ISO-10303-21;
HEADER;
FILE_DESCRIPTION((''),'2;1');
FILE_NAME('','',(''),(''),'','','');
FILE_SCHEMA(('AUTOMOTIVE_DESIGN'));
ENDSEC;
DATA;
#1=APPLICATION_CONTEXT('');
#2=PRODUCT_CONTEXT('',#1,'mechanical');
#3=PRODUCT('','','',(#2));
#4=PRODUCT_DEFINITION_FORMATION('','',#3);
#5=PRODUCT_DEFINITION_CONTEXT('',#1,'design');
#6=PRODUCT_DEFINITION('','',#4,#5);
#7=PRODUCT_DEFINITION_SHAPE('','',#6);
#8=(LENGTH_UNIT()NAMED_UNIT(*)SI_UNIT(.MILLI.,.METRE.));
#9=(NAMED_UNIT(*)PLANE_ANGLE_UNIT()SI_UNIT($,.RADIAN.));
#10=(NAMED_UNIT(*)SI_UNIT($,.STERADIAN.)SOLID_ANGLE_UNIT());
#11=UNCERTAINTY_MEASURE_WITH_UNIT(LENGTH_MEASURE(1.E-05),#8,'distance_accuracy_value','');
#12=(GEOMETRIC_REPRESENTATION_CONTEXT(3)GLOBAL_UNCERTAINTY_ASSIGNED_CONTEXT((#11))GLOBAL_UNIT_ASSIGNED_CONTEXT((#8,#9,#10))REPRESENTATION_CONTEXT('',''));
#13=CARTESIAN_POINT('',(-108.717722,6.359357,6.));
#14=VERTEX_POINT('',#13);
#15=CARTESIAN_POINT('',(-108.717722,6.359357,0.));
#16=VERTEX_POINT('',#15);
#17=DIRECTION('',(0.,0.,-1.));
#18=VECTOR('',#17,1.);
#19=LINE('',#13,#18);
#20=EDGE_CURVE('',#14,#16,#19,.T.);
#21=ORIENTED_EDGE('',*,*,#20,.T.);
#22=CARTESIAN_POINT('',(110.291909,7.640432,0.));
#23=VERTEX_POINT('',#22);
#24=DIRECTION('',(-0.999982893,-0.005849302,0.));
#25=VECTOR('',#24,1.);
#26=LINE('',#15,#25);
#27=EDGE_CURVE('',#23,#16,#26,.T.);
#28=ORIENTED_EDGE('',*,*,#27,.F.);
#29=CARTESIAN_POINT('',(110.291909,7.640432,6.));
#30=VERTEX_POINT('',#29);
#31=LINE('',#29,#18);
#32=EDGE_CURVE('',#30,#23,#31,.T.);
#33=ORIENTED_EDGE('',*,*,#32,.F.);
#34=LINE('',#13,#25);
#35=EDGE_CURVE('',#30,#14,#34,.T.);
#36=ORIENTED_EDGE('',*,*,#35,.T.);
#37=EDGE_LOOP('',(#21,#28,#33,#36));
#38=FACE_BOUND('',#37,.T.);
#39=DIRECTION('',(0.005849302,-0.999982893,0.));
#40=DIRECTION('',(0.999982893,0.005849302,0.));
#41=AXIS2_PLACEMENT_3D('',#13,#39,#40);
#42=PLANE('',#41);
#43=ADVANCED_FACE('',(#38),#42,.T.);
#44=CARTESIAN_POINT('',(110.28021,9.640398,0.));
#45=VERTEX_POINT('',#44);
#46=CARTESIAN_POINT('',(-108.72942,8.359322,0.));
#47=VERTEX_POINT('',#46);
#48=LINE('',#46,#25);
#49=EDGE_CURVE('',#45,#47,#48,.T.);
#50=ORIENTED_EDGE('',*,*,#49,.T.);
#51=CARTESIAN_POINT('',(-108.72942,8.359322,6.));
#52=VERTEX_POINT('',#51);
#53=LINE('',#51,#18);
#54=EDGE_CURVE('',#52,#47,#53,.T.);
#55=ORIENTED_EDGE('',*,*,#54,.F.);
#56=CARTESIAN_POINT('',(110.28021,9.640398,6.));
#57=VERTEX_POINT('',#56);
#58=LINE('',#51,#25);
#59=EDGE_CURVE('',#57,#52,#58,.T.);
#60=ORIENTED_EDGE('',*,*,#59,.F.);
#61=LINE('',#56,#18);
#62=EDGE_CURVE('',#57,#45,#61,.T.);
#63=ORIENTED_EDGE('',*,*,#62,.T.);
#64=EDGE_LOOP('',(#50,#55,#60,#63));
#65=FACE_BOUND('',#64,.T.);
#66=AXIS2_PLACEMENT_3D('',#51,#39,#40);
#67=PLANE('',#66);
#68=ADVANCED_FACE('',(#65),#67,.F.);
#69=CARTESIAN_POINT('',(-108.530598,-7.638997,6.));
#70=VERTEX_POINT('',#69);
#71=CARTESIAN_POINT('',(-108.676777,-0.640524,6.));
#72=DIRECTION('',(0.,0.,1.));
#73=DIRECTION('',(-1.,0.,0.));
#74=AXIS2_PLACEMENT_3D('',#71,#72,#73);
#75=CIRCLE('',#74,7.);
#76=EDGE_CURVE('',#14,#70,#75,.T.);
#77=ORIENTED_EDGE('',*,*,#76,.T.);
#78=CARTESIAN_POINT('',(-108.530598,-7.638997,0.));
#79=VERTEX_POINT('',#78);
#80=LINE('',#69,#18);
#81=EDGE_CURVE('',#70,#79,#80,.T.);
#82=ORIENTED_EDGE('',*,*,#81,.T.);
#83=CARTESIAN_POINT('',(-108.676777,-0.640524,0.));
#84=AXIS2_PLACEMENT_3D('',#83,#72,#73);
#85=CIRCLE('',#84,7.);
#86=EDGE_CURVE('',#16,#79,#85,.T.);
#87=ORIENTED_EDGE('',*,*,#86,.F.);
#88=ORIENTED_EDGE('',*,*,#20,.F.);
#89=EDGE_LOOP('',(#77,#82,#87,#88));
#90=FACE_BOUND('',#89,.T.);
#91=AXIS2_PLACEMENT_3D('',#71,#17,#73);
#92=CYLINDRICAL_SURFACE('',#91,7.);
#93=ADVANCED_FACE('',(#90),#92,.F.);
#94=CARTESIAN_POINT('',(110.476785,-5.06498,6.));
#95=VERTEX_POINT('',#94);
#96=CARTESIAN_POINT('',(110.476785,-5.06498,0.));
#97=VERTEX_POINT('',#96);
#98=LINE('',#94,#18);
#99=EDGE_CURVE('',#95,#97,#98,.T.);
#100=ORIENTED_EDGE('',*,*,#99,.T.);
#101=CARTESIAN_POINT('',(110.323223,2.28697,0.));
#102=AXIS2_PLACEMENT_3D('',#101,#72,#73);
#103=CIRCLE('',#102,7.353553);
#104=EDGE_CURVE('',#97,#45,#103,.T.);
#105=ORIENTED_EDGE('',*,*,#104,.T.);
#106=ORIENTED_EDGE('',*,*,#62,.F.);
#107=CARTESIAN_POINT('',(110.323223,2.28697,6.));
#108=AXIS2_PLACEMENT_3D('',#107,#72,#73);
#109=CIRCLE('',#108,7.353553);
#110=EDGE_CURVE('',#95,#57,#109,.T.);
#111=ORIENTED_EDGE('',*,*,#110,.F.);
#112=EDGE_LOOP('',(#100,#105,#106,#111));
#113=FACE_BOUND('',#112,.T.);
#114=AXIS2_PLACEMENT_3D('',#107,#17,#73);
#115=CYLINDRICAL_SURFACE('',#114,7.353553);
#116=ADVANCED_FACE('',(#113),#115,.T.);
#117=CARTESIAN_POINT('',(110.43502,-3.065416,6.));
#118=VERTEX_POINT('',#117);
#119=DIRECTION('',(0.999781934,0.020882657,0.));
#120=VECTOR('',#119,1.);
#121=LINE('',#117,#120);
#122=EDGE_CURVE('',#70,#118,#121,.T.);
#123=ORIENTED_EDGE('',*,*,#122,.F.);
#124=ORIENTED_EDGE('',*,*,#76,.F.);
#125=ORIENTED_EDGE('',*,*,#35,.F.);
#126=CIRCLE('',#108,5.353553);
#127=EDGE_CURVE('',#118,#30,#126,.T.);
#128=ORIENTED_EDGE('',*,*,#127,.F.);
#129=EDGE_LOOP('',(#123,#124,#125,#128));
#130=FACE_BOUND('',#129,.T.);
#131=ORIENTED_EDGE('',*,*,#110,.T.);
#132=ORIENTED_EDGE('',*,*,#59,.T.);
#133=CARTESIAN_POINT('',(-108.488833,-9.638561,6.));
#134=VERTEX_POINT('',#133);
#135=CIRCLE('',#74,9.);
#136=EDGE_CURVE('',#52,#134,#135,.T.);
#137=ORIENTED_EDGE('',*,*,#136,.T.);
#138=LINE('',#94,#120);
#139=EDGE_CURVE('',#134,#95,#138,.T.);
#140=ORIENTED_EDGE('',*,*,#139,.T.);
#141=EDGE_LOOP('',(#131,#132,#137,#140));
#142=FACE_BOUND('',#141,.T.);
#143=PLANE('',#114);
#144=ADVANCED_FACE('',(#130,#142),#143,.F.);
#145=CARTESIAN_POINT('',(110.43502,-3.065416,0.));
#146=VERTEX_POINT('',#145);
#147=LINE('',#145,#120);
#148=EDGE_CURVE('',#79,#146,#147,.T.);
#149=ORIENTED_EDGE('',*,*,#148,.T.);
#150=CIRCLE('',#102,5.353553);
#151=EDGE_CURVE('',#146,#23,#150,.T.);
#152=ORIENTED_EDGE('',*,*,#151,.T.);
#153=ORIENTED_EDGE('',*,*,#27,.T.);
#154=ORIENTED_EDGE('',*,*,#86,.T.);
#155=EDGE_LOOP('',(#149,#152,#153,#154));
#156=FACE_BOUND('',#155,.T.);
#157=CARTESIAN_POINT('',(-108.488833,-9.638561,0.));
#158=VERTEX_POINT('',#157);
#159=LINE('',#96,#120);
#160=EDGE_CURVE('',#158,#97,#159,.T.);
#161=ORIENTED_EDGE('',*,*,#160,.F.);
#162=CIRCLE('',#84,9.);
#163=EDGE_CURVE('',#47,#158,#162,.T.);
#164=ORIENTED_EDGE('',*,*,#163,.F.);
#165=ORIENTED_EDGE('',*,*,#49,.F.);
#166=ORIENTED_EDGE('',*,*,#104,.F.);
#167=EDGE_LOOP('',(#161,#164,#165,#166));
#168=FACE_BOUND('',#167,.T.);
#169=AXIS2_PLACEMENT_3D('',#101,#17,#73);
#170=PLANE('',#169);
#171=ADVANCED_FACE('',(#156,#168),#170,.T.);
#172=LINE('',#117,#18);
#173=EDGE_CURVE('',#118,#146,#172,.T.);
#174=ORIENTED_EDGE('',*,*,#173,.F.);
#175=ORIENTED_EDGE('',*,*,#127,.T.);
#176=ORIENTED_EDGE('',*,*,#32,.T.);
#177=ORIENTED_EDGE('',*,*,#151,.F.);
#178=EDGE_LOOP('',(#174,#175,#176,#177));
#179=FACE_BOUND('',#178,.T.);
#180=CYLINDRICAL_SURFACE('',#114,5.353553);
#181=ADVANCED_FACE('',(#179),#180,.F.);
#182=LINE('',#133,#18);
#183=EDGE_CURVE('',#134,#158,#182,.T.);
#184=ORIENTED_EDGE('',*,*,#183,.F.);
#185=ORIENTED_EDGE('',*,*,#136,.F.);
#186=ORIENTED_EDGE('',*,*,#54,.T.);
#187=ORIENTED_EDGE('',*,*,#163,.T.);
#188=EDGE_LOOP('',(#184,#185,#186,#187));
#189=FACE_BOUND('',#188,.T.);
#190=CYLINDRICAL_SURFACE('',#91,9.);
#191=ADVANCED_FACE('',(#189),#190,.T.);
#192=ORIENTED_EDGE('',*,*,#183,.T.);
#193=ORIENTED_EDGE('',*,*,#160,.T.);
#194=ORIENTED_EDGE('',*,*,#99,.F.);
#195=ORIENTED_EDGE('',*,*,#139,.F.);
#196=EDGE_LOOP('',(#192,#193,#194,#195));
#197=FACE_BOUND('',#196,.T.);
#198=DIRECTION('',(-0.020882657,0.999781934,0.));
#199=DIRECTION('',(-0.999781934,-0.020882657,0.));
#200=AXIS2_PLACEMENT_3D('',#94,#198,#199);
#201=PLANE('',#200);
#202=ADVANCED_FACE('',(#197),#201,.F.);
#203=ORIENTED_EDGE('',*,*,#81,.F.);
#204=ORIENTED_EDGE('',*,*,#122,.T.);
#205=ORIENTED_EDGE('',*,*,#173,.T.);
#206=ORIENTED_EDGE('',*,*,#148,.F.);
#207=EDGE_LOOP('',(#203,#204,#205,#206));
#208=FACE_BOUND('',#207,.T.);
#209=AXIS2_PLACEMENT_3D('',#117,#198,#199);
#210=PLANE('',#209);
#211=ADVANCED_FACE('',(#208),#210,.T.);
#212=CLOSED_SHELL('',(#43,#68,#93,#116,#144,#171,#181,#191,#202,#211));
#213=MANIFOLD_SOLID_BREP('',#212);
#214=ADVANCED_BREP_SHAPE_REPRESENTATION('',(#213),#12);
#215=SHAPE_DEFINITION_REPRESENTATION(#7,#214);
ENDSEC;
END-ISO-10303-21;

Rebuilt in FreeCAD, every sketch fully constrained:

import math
import FreeCAD as App
import Part
import Sketcher

doc = App.newDocument("Part")
body = doc.addObject("PartDesign::Body", "Body")

sketch1 = body.newObject("Sketcher::SketchObject", "Sketch")
sketch1.AttachmentSupport = (doc.getObject("XY_Plane"), [""])
sketch1.MapMode = "FlatFace"
sketch1.addGeometry([
    Part.LineSegment(App.Vector(-108.488833, -9.638561, 0), App.Vector(110.476785, -5.06498, 0)),
    Part.ArcOfCircle(Part.Circle(App.Vector(110.323223, 2.28697, 0), App.Vector(0, 0, 1), 7.353553), math.radians(-88.803425), math.radians(90.335142)),
    Part.LineSegment(App.Vector(110.28021, 9.640398, 0), App.Vector(-108.72942, 8.359322, 0)),
    Part.ArcOfCircle(Part.Circle(App.Vector(-108.676777, -0.640524, 0), App.Vector(0, 0, 1), 9), math.radians(90.335142), math.radians(271.196575)),
    Part.LineSegment(App.Vector(-108.717722, 6.359357, 0), App.Vector(110.291909, 7.640432, 0)),
    Part.ArcOfCircle(Part.Circle(App.Vector(110.323223, 2.28697, 0), App.Vector(0, 0, 1), 5.353553), math.radians(-88.803425), math.radians(90.335142)),
    Part.LineSegment(App.Vector(110.43502, -3.065416, 0), App.Vector(-108.530598, -7.638997, 0)),
    Part.ArcOfCircle(Part.Circle(App.Vector(-108.676777, -0.640524, 0), App.Vector(0, 0, 1), 7), math.radians(90.335142), math.radians(271.196575)),
], False)
sketch1.addConstraint([
    Sketcher.Constraint("Tangent", 0, 2, 1, 1),
    Sketcher.Constraint("Tangent", 1, 2, 2, 1),
    Sketcher.Constraint("Tangent", 2, 2, 3, 1),
    Sketcher.Constraint("Tangent", 3, 2, 0, 1),
    Sketcher.Constraint("Tangent", 4, 2, 5, 2),
    Sketcher.Constraint("Tangent", 5, 1, 6, 1),
    Sketcher.Constraint("Tangent", 6, 2, 7, 2),
    Sketcher.Constraint("Tangent", 7, 1, 4, 1),
    Sketcher.Constraint("Coincident", 5, 3, 1, 3),
    Sketcher.Constraint("Coincident", 7, 3, 3, 3),
    Sketcher.Constraint("Parallel", 2, 4),
    Sketcher.Constraint("Radius", 3, 9.0),
    Sketcher.Constraint("Radius", 7, 7.0),
    Sketcher.Constraint("DistanceX", 3, 3, 1, 3, 219.0),
    Sketcher.Constraint("Radius", 1, 7.353553),
    Sketcher.Constraint("DistanceX", 6, 2, -1, 1, 108.530598),
    Sketcher.Constraint("DistanceY", -1, 1, 1, 3, 2.28697),
    Sketcher.Constraint("DistanceX", -1, 1, 1, 2, 110.28021),
])
pad1 = body.newObject("PartDesign::Pad", "Pad")
pad1.Profile = sketch1
pad1.Length = 6

doc.recompute()
